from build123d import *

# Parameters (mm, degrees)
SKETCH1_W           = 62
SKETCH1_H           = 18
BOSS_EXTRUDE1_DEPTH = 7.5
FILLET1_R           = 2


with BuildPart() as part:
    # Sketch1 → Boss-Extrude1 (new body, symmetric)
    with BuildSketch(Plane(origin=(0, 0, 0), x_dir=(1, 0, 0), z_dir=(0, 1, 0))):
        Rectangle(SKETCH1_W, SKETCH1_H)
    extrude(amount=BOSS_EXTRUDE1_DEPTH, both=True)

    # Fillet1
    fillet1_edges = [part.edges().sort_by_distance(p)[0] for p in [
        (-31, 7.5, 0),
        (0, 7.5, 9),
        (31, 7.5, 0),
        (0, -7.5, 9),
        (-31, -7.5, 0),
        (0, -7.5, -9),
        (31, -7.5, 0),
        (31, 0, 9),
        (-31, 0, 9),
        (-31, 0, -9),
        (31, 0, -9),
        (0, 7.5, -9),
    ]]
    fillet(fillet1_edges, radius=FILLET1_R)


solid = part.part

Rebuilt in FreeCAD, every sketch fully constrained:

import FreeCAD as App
import Part
import Sketcher
Q = App.Units.Quantity


def add_polygon(sketch, points):
    """Adds a closed chain of lines whose ends are joined by coincident constraints."""
    first, n = sketch.GeometryCount, len(points)
    for a, b in zip(points, points[1:] + points[:1]):
        sketch.addGeometry(Part.LineSegment(App.Vector(*a, 0), App.Vector(*b, 0)), False)
    for i in range(n):
        sketch.addConstraint(Sketcher.Constraint("Coincident", first + i, 2, first + (i + 1) % n, 1))

doc = App.newDocument("Part")
params = doc.addObject("Spreadsheet::Sheet", "Params")
for row, (alias, value) in enumerate([
    ("sketch1_width", "62 mm"),
    ("sketch1_height", "18 mm"),
    ("pad1_length", "15 mm"),
    ("fillet_radius", "2 mm"),
], start=1):
    params.set(f"A{row}", alias)
    params.set(f"B{row}", "=" + value)
    params.setAlias(f"B{row}", alias)

body = doc.addObject("PartDesign::Body", "Body")

# Sketch on XZ plane
sketch1 = body.newObject("Sketcher::SketchObject", "Sketch")
sketch1.AttachmentSupport = (doc.getObject("XZ_Plane"), [""])
sketch1.MapMode = "FlatFace"
add_polygon(sketch1, [(-31, -9), (-31, 9), (31, 9), (31, -9)])  # lines 0-3
sketch1.addConstraint([
    Sketcher.Constraint("Vertical", 0),
    Sketcher.Constraint("Horizontal", 1),
    Sketcher.Constraint("Vertical", 2),
    Sketcher.Constraint("Horizontal", 3),
    Sketcher.Constraint("Symmetric", 0, 2, 2, 2, -1, 1),
    Sketcher.Constraint("DistanceX", 1, 1, 1, 2, Q("62 mm")),
    Sketcher.Constraint("DistanceY", 0, 1, 0, 2, Q("18 mm")),
])
sketch1.setExpression("Constraints[9]", "Params.sketch1_width")
sketch1.setExpression("Constraints[10]", "Params.sketch1_height")
pad1 = body.newObject("PartDesign::Pad", "Pad")
pad1.Profile = sketch1
pad1.setExpression("Length", "Params.pad1_length")
pad1.Midplane = True
doc.recompute()

fillet = body.newObject("PartDesign::Fillet", "Fillet")
fillet.Base = (pad1, ["Edge1"])
fillet.UseAllEdges = True
fillet.setExpression("Radius", "Params.fillet_radius")

doc.recompute()
